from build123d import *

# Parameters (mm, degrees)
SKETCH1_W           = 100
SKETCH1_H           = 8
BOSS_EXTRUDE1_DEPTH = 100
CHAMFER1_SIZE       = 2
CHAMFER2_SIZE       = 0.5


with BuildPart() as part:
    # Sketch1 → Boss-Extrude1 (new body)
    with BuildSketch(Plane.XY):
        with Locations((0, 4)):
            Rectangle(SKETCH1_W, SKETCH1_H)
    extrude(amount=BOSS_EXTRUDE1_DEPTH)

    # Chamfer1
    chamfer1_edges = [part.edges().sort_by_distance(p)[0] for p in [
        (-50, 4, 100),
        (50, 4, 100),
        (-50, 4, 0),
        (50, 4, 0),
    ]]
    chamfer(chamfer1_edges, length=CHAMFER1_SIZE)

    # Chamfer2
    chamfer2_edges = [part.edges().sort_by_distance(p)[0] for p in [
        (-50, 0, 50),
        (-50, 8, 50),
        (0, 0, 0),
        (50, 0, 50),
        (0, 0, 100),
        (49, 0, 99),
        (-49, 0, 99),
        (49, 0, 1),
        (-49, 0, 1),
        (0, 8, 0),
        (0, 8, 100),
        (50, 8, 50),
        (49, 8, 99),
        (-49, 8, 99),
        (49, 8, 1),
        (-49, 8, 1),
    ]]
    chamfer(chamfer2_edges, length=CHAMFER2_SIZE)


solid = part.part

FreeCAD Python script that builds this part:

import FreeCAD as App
import Part
import Sketcher
from FreeCAD import Vector
Q = App.Units.Quantity


def edges_at(feature, points):
    """Names of the edges that pass closest to the given points."""
    edges = feature.Shape.Edges
    near = lambda p: min(range(len(edges)), key=lambda i: edges[i].distToShape(Part.Vertex(*p))[0])
    return sorted({f"Edge{near(p) + 1}" for p in points})

doc = App.newDocument("Part")
params = doc.addObject("Spreadsheet::Sheet", "Params")
for row, (alias, value) in enumerate([
    ("sketch1_width", "100 mm"),
    ("sketch1_height", "8 mm"),
    ("pad1_length", "100 mm"),
    ("chamfer_size", "2 mm"),
    ("chamfer2_size", "0.5 mm"),
], start=1):
    params.set(f"A{row}", alias)
    params.set(f"B{row}", "=" + value)
    params.setAlias(f"B{row}", alias)

body = doc.addObject("PartDesign::Body", "Body")

sketch1 = body.newObject("Sketcher::SketchObject", "Sketch")
sketch1.AttachmentSupport = (doc.getObject("XY_Plane"), [""])
sketch1.MapMode = "FlatFace"
sketch1.addGeometry(Part.LineSegment(Vector(-50, 8, 0), Vector(-50, 0, 0)), False)
sketch1.addGeometry(Part.LineSegment(Vector(-50, 0, 0), Vector(50, 0, 0)), False)
sketch1.addGeometry(Part.LineSegment(Vector(50, 0, 0), Vector(50, 8, 0)), False)
sketch1.addGeometry(Part.LineSegment(Vector(50, 8, 0), Vector(-50, 8, 0)), False)
sketch1.addConstraint(Sketcher.Constraint("Coincident", 0, 2, 1, 1))
sketch1.addConstraint(Sketcher.Constraint("Coincident", 1, 2, 2, 1))
sketch1.addConstraint(Sketcher.Constraint("Coincident", 2, 2, 3, 1))
sketch1.addConstraint(Sketcher.Constraint("Coincident", 3, 2, 0, 1))
sketch1.addConstraint(Sketcher.Constraint("Vertical", 0))
sketch1.addConstraint(Sketcher.Constraint("Horizontal", 1))
sketch1.addConstraint(Sketcher.Constraint("Vertical", 2))
sketch1.addConstraint(Sketcher.Constraint("Horizontal", 3))
sketch1.addConstraint(Sketcher.Constraint("Symmetric", 0, 2, 1, 2, -1, 1))
sketch1.addConstraint(Sketcher.Constraint("DistanceX", 1, 1, 1, 2, Q("100 mm")))
sketch1.addConstraint(Sketcher.Constraint("DistanceY", 0, 2, 0, 1, Q("8 mm")))
sketch1.setExpression("Constraints[9]", "Params.sketch1_width")
sketch1.setExpression("Constraints[10]", "Params.sketch1_height")
pad1 = body.newObject("PartDesign::Pad", "Pad")
pad1.Profile = sketch1
pad1.setExpression("Length", "Params.pad1_length")
doc.recompute()

chamfer = body.newObject("PartDesign::Chamfer", "Chamfer")
chamfer.Base = (pad1, edges_at(pad1, [
    (-50, 4, 100),
    (50, 4, 100),
    (-50, 4, 0),
    (50, 4, 0),
]))
chamfer.setExpression("Size", "Params.chamfer_size")
doc.recompute()

chamfer2 = body.newObject("PartDesign::Chamfer", "Chamfer001")
chamfer2.Base = (chamfer, edges_at(chamfer, [
    (-50, 0, 50),
    (-50, 8, 50),
    (0, 0, 0),
    (50, 0, 50),
    (0, 0, 100),
    (49, 0, 99),
    (-49, 0, 99),
    (49, 0, 1),
    (-49, 0, 1),
    (0, 8, 0),
    (0, 8, 100),
    (50, 8, 50),
    (49, 8, 99),
    (-49, 8, 99),
    (49, 8, 1),
    (-49, 8, 1),
]))
chamfer2.setExpression("Size", "Params.chamfer2_size")

doc.recompute()
